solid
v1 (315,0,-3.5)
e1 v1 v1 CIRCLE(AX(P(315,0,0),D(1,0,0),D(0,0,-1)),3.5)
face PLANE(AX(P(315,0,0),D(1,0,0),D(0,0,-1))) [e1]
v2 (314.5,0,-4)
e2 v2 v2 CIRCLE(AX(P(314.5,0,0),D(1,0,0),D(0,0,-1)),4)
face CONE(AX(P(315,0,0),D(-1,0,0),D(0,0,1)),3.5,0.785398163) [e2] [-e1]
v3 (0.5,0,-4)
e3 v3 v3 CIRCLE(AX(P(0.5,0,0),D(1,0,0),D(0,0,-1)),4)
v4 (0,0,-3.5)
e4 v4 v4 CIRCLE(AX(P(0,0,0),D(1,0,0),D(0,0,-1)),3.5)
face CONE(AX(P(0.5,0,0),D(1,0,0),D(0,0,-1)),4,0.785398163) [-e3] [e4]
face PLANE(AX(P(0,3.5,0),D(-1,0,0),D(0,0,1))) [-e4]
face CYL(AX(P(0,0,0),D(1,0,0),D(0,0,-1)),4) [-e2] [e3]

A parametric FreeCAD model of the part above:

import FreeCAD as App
import Part
import Sketcher

V = App.Vector
Q = App.Units.Quantity

doc = App.newDocument("Part")
body = doc.addObject("PartDesign::Body", "Body")

# Sketch on XY plane
sketch1 = body.newObject("Sketcher::SketchObject", "Sketch")
sketch1.AttachmentSupport = (doc.getObject("XY_Plane"), [""])
sketch1.MapMode = "FlatFace"
sketch1.addGeometry([
    Part.LineSegment(V(0, 3.5, 0), V(0, 0, 0)),  # 0
    Part.LineSegment(V(0, 0, 0), V(315, 0, 0)),  # 1
    Part.LineSegment(V(315, 0, 0), V(315, 3.5, 0)),  # 2
    Part.LineSegment(V(315, 3.5, 0), V(314.5, 4, 0)),  # 3
    Part.LineSegment(V(314.5, 4, 0), V(0.5, 4, 0)),  # 4
    Part.LineSegment(V(0.5, 4, 0), V(0, 3.5, 0)),  # 5
], False)
sketch1.addConstraint([
    Sketcher.Constraint("Coincident", 0, 2, 1, 1),
    Sketcher.Constraint("Coincident", 1, 2, 2, 1),
    Sketcher.Constraint("Coincident", 2, 2, 3, 1),
    Sketcher.Constraint("Coincident", 3, 2, 4, 1),
    Sketcher.Constraint("Coincident", 4, 2, 5, 1),
    Sketcher.Constraint("Coincident", 5, 2, 0, 1),
    Sketcher.Constraint("Vertical", 0),
    Sketcher.Constraint("Horizontal", 1),
    Sketcher.Constraint("Vertical", 2),
    Sketcher.Constraint("Horizontal", 4),
    Sketcher.Constraint("Coincident", 0, 2, -1, 1),
    Sketcher.Constraint("Perpendicular", 3, 5),
    Sketcher.Constraint("Horizontal", 2, 2, 5, 2),
    Sketcher.Constraint("Equal", 3, 5),
    Sketcher.Constraint("DistanceX", 1, 1, 1, 2, Q("315 mm")),
    Sketcher.Constraint("DistanceX", 4, 2, 4, 1, Q("314 mm")),
    Sketcher.Constraint("DistanceY", 0, 2, 0, 1, Q("3.5 mm")),
])
revolution = body.newObject("PartDesign::Revolution", "Revolution")
revolution.Profile = sketch1
revolution.ReferenceAxis = (sketch1, ["H_Axis"])
revolution.Angle = 360

doc.recompute()
